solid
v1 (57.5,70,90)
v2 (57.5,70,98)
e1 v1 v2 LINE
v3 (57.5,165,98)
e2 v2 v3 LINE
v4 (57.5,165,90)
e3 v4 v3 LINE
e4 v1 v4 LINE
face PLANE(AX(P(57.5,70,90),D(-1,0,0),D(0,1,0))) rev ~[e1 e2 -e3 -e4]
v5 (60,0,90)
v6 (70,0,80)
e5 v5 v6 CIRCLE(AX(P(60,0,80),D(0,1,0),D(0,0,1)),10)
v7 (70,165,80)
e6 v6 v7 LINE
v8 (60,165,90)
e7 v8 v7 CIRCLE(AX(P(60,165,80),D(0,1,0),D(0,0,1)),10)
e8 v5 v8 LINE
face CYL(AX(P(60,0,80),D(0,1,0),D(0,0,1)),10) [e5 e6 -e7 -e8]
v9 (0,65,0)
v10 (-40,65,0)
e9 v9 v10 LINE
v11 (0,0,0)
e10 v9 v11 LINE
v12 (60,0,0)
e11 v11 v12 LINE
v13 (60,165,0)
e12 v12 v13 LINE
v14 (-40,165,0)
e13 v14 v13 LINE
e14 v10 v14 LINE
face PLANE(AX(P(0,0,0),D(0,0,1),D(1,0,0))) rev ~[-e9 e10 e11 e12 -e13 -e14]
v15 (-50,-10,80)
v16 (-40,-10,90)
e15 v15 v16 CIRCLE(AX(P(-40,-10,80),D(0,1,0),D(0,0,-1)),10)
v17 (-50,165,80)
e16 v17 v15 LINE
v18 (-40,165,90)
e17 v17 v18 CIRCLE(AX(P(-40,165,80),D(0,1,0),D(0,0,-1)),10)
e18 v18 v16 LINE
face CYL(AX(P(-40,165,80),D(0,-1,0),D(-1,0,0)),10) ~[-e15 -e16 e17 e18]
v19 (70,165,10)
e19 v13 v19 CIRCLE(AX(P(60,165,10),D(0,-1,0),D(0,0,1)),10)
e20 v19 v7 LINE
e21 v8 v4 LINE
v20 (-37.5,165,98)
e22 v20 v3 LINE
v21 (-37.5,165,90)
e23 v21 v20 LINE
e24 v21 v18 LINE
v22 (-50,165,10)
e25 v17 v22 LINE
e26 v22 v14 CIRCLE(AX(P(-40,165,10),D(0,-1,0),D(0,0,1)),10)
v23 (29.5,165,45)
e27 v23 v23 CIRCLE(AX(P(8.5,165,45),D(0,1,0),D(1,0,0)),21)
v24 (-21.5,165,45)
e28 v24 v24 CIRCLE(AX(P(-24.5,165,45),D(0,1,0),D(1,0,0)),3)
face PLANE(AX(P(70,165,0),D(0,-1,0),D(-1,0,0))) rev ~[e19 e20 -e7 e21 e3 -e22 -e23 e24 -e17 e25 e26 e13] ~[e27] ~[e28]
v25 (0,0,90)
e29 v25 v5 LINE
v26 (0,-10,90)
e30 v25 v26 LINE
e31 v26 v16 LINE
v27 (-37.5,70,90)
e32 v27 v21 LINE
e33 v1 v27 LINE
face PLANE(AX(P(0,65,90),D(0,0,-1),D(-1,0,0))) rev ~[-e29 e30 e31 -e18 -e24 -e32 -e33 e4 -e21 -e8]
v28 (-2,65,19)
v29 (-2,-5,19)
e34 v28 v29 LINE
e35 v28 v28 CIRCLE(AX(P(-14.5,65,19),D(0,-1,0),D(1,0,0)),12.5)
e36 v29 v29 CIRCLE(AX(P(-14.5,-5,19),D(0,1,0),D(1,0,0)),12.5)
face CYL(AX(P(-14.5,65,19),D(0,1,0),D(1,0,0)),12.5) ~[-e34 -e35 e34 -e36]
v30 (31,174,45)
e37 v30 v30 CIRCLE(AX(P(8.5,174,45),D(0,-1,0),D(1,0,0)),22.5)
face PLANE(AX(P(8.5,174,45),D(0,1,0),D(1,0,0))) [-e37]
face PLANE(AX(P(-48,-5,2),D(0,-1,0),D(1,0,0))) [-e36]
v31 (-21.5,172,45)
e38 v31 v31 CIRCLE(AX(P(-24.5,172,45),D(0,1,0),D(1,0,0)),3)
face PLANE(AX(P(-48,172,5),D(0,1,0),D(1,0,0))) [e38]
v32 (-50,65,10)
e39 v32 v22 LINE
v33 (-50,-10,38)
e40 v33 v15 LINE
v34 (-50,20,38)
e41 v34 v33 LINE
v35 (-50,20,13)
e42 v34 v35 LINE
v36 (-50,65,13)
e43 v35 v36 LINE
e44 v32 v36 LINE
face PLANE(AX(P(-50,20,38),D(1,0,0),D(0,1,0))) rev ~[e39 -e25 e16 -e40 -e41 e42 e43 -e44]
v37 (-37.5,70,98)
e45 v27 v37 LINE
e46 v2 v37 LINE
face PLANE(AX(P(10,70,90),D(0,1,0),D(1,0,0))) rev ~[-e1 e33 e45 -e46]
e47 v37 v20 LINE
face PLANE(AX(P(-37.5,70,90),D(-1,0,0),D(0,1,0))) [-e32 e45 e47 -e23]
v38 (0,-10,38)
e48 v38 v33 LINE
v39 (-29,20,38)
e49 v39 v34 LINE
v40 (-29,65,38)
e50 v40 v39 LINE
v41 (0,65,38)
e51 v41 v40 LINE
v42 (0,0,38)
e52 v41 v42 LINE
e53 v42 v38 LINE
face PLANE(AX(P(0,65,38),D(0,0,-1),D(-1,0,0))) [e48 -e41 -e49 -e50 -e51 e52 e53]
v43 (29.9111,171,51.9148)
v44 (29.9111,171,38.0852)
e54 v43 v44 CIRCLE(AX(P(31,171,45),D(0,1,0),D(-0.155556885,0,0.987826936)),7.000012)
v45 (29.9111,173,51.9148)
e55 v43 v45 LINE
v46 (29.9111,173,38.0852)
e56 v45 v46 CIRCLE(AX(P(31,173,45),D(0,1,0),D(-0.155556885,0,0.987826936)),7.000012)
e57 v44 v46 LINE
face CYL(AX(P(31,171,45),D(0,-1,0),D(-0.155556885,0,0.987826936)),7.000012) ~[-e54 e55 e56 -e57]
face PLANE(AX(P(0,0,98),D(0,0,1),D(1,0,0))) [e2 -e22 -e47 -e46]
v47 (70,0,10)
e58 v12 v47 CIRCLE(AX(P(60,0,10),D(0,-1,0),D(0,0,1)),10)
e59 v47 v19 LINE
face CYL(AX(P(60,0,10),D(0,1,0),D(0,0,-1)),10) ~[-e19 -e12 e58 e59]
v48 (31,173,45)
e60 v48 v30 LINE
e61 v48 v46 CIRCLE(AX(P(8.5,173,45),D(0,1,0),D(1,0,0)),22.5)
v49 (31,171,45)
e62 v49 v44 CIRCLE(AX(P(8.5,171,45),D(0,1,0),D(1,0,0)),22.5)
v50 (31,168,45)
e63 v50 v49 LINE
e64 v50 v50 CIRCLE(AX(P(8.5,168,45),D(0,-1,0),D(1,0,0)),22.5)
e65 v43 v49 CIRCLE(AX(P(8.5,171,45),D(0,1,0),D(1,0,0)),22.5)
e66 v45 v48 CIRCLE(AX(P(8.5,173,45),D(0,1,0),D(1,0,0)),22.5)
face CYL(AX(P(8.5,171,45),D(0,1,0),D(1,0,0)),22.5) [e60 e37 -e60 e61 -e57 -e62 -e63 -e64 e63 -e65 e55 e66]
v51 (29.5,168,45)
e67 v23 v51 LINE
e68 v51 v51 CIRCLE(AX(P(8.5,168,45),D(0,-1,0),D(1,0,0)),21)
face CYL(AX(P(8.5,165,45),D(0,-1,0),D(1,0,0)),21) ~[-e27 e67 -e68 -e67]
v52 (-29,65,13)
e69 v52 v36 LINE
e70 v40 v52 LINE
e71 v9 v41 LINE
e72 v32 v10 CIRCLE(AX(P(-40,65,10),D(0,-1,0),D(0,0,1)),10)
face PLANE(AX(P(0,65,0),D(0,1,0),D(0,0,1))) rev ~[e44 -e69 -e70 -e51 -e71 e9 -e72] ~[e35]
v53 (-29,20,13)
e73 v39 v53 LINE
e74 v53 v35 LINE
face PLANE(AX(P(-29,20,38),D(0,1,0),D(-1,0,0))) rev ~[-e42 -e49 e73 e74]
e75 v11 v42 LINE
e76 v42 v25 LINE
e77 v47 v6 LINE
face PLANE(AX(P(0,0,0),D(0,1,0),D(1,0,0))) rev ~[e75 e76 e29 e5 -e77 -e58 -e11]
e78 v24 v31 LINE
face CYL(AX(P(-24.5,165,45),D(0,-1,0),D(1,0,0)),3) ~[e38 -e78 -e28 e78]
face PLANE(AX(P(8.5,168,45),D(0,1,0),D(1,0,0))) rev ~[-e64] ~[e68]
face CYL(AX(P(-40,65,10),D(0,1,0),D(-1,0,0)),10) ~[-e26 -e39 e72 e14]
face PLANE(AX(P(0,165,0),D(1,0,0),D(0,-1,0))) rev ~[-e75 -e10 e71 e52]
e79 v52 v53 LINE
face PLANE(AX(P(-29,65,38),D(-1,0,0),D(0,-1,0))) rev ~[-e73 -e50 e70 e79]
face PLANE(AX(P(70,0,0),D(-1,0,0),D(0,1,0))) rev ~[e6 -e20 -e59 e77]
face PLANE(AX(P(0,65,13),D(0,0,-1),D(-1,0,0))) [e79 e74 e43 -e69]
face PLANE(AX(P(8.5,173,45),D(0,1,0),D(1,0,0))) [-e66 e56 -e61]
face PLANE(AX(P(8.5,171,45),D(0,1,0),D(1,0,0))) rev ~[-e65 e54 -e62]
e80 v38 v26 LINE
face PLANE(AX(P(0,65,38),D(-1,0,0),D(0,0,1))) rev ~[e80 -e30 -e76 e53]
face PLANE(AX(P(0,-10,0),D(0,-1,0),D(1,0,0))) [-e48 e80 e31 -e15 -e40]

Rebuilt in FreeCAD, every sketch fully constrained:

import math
import FreeCAD as App
import Part
import Sketcher
from FreeCAD import Vector
Q = App.Units.Quantity


def edges_at(feature, points):
    """Names of the edges that pass closest to the given points."""
    edges = feature.Shape.Edges
    near = lambda p: min(range(len(edges)), key=lambda i: edges[i].distToShape(Part.Vertex(*p))[0])
    return sorted({f"Edge{near(p) + 1}" for p in points})

doc = App.newDocument("Part")
params = doc.addObject("Spreadsheet::Sheet", "Params")
for row, (alias, value) in enumerate([
    ("sketch1_width", "70 mm"),
    ("sketch1_height", "165 mm"),
    ("pad1_length", "90 mm"),
    ("sketch2_width", "100 mm"),
    ("sketch2_height", "90 mm"),
    ("pad2_length", "50 mm"),
    ("sketch3_height", "52 mm"),
    ("sketch3_width", "50 mm"),
    ("pad3_length", "75 mm"),
    ("sketch4_width", "21 mm"),
    ("sketch4_height", "45 mm"),
    ("pad4_length", "25 mm"),
    ("sketch5_width", "95 mm"),
    ("pad5_length", "8 mm"),
    ("sketch6_diameter", "25 mm"),
    ("pad6_length", "70 mm"),
    ("sketch7_diameter", "42 mm"),
    ("pad7_length", "6 mm"),
    ("sketch8_diameter", "6 mm"),
    ("pad8_length", "7 mm"),
    ("sketch9_diameter", "45 mm"),
    ("pad9_length", "6 mm"),
    ("sketch10_radius", "7 mm"),
    ("sketch10_radius2", "22.5 mm"),
    ("pad10_length", "2 mm"),
    ("fillet_radius", "10 mm"),
], start=1):
    params.set(f"A{row}", alias)
    params.set(f"B{row}", "=" + value)
    params.setAlias(f"B{row}", alias)

body = doc.addObject("PartDesign::Body", "Body")

sketch1 = body.newObject("Sketcher::SketchObject", "Sketch")
sketch1.AttachmentSupport = (doc.getObject("XY_Plane"), [""])
sketch1.MapMode = "FlatFace"
sketch1.addGeometry(Part.LineSegment(Vector(0, 165, 0), Vector(0, 0, 0)), False)
sketch1.addGeometry(Part.LineSegment(Vector(0, 0, 0), Vector(70, 0, 0)), False)
sketch1.addGeometry(Part.LineSegment(Vector(70, 0, 0), Vector(70, 165, 0)), False)
sketch1.addGeometry(Part.LineSegment(Vector(70, 165, 0), Vector(0, 165, 0)), False)
sketch1.addConstraint(Sketcher.Constraint("Coincident", 0, 2, 1, 1))
sketch1.addConstraint(Sketcher.Constraint("Coincident", 1, 2, 2, 1))
sketch1.addConstraint(Sketcher.Constraint("Coincident", 2, 2, 3, 1))
sketch1.addConstraint(Sketcher.Constraint("Coincident", 3, 2, 0, 1))
sketch1.addConstraint(Sketcher.Constraint("Vertical", 0))
sketch1.addConstraint(Sketcher.Constraint("Horizontal", 1))
sketch1.addConstraint(Sketcher.Constraint("Vertical", 2))
sketch1.addConstraint(Sketcher.Constraint("Horizontal", 3))
sketch1.addConstraint(Sketcher.Constraint("Coincident", 0, 2, -1, 1))
sketch1.addConstraint(Sketcher.Constraint("DistanceX", 1, 1, 1, 2, Q("70 mm")))
sketch1.addConstraint(Sketcher.Constraint("DistanceY", 0, 2, 0, 1, Q("165 mm")))
sketch1.setExpression("Constraints[9]", "Params.sketch1_width")
sketch1.setExpression("Constraints[10]", "Params.sketch1_height")
pad1 = body.newObject("PartDesign::Pad", "Pad")
pad1.Profile = sketch1
pad1.setExpression("Length", "Params.pad1_length")

sketch2 = body.newObject("Sketcher::SketchObject", "Sketch001")
sketch2.AttachmentSupport = (doc.getObject("YZ_Plane"), [""])
sketch2.MapMode = "FlatFace"
sketch2.addGeometry(Part.LineSegment(Vector(65, 0, 0), Vector(65, 90, 0)), False)
sketch2.addGeometry(Part.LineSegment(Vector(65, 90, 0), Vector(165, 90, 0)), False)
sketch2.addGeometry(Part.LineSegment(Vector(165, 90, 0), Vector(165, 0, 0)), False)
sketch2.addGeometry(Part.LineSegment(Vector(165, 0, 0), Vector(65, 0, 0)), False)
sketch2.addConstraint(Sketcher.Constraint("Coincident", 0, 2, 1, 1))
sketch2.addConstraint(Sketcher.Constraint("Coincident", 1, 2, 2, 1))
sketch2.addConstraint(Sketcher.Constraint("Coincident", 2, 2, 3, 1))
sketch2.addConstraint(Sketcher.Constraint("Coincident", 3, 2, 0, 1))
sketch2.addConstraint(Sketcher.Constraint("Vertical", 0))
sketch2.addConstraint(Sketcher.Constraint("Horizontal", 1))
sketch2.addConstraint(Sketcher.Constraint("Vertical", 2))
sketch2.addConstraint(Sketcher.Constraint("Horizontal", 3))
sketch2.addConstraint(Sketcher.Constraint("PointOnObject", 2, 2, -1))
sketch2.addConstraint(Sketcher.Constraint("DistanceX", 1, 1, 1, 2, Q("100 mm")))
sketch2.addConstraint(Sketcher.Constraint("DistanceY", 0, 1, 0, 2, Q("90 mm")))
sketch2.addConstraint(Sketcher.Constraint("DistanceX", -1, 1, 0, 2, Q("65 mm")))
sketch2.setExpression("Constraints[9]", "Params.sketch2_width")
sketch2.setExpression("Constraints[10]", "Params.sketch2_height")
pad2 = body.newObject("PartDesign::Pad", "Pad001")
pad2.Profile = sketch2
pad2.setExpression("Length", "Params.pad2_length")
pad2.Reversed = True

sketch3 = body.newObject("Sketcher::SketchObject", "Sketch002")
sketch3.AttachmentSupport = (doc.getObject("XZ_Plane"), [""])
sketch3.MapMode = "FlatFace"
sketch3.AttachmentOffset = App.Placement(Vector(0, 0, -65), App.Rotation())
sketch3.addGeometry(Part.LineSegment(Vector(0, 38, 0), Vector(0, 90, 0)), False)
sketch3.addGeometry(Part.LineSegment(Vector(0, 90, 0), Vector(-50, 90, 0)), False)
sketch3.addGeometry(Part.LineSegment(Vector(-50, 90, 0), Vector(-50, 38, 0)), False)
sketch3.addGeometry(Part.LineSegment(Vector(-50, 38, 0), Vector(0, 38, 0)), False)
sketch3.addConstraint(Sketcher.Constraint("Coincident", 0, 2, 1, 1))
sketch3.addConstraint(Sketcher.Constraint("Coincident", 1, 2, 2, 1))
sketch3.addConstraint(Sketcher.Constraint("Coincident", 2, 2, 3, 1))
sketch3.addConstraint(Sketcher.Constraint("Coincident", 3, 2, 0, 1))
sketch3.addConstraint(Sketcher.Constraint("Vertical", 0))
sketch3.addConstraint(Sketcher.Constraint("Horizontal", 1))
sketch3.addConstraint(Sketcher.Constraint("Vertical", 2))
sketch3.addConstraint(Sketcher.Constraint("Horizontal", 3))
sketch3.addConstraint(Sketcher.Constraint("PointOnObject", 0, 2, -2))
sketch3.addConstraint(Sketcher.Constraint("DistanceY", 0, 1, 0, 2, Q("52 mm")))
sketch3.addConstraint(Sketcher.Constraint("DistanceX", 1, 2, 1, 1, Q("50 mm")))
sketch3.addConstraint(Sketcher.Constraint("DistanceY", -1, 1, 0, 2, Q("90 mm")))
sketch3.setExpression("Constraints[9]", "Params.sketch3_height")
sketch3.setExpression("Constraints[10]", "Params.sketch3_width")
pad3 = body.newObject("PartDesign::Pad", "Pad002")
pad3.Profile = sketch3
pad3.setExpression("Length", "Params.pad3_length")

sketch4 = body.newObject("Sketcher::SketchObject", "Sketch003")
sketch4.AttachmentSupport = (doc.getObject("XY_Plane"), [""])
sketch4.MapMode = "FlatFace"
sketch4.AttachmentOffset = App.Placement(Vector(0, 0, 38), App.Rotation())
sketch4.addGeometry(Part.LineSegment(Vector(-50, 65, 0), Vector(-29, 65, 0)), False)
sketch4.addGeometry(Part.LineSegment(Vector(-29, 65, 0), Vector(-29, 20, 0)), False)
sketch4.addGeometry(Part.LineSegment(Vector(-29, 20, 0), Vector(-50, 20, 0)), False)
sketch4.addGeometry(Part.LineSegment(Vector(-50, 20, 0), Vector(-50, 65, 0)), False)
sketch4.addConstraint(Sketcher.Constraint("Coincident", 0, 2, 1, 1))
sketch4.addConstraint(Sketcher.Constraint("Coincident", 1, 2, 2, 1))
sketch4.addConstraint(Sketcher.Constraint("Coincident", 2, 2, 3, 1))
sketch4.addConstraint(Sketcher.Constraint("Coincident", 3, 2, 0, 1))
sketch4.addConstraint(Sketcher.Constraint("Horizontal", 0))
sketch4.addConstraint(Sketcher.Constraint("Vertical", 1))
sketch4.addConstraint(Sketcher.Constraint("Horizontal", 2))
sketch4.addConstraint(Sketcher.Constraint("Vertical", 3))
sketch4.addConstraint(Sketcher.Constraint("DistanceX", 0, 1, 0, 2, Q("21 mm")))
sketch4.addConstraint(Sketcher.Constraint("DistanceY", 1, 2, 1, 1, Q("45 mm")))
sketch4.addConstraint(Sketcher.Constraint("DistanceX", 0, 2, -1, 1, Q("29 mm")))
sketch4.addConstraint(Sketcher.Constraint("DistanceY", -1, 1, 0, 2, Q("65 mm")))
sketch4.setExpression("Constraints[8]", "Params.sketch4_width")
sketch4.setExpression("Constraints[9]", "Params.sketch4_height")
pad4 = body.newObject("PartDesign::Pad", "Pad003")
pad4.Profile = sketch4
pad4.setExpression("Length", "Params.pad4_length")
pad4.Reversed = True

sketch5 = body.newObject("Sketcher::SketchObject", "Sketch004")
sketch5.AttachmentSupport = (doc.getObject("XY_Plane"), [""])
sketch5.MapMode = "FlatFace"
sketch5.AttachmentOffset = App.Placement(Vector(0, 0, 90), App.Rotation())
sketch5.addGeometry(Part.LineSegment(Vector(58, 70, 0), Vector(58, 165, 0)), False)
sketch5.addGeometry(Part.LineSegment(Vector(58, 165, 0), Vector(-38, 165, 0)), False)
sketch5.addGeometry(Part.LineSegment(Vector(-38, 165, 0), Vector(-38, 70, 0)), False)
sketch5.addGeometry(Part.LineSegment(Vector(-38, 70, 0), Vector(58, 70, 0)), False)
sketch5.addConstraint(Sketcher.Constraint("Coincident", 0, 2, 1, 1))
sketch5.addConstraint(Sketcher.Constraint("Coincident", 1, 2, 2, 1))
sketch5.addConstraint(Sketcher.Constraint("Coincident", 2, 2, 3, 1))
sketch5.addConstraint(Sketcher.Constraint("Coincident", 3, 2, 0, 1))
sketch5.addConstraint(Sketcher.Constraint("Vertical", 0))
sketch5.addConstraint(Sketcher.Constraint("Horizontal", 1))
sketch5.addConstraint(Sketcher.Constraint("Vertical", 2))
sketch5.addConstraint(Sketcher.Constraint("Horizontal", 3))
sketch5.addConstraint(Sketcher.Constraint("Equal", 3, 0))
sketch5.addConstraint(Sketcher.Constraint("DistanceX", 1, 2, 1, 1, Q("95 mm")))
sketch5.addConstraint(Sketcher.Constraint("DistanceY", -1, 1, 0, 2, Q("165 mm")))
sketch5.addConstraint(Sketcher.Constraint("DistanceX", -1, 1, 0, 2, Q("57.5 mm")))
sketch5.setExpression("Constraints[9]", "Params.sketch5_width")
pad5 = body.newObject("PartDesign::Pad", "Pad004")
pad5.Profile = sketch5
pad5.setExpression("Length", "Params.pad5_length")

sketch6 = body.newObject("Sketcher::SketchObject", "Sketch005")
sketch6.AttachmentSupport = (doc.getObject("XZ_Plane"), [""])
sketch6.MapMode = "FlatFace"
sketch6.AttachmentOffset = App.Placement(Vector(0, 0, -65), App.Rotation())
sketch6.addGeometry(Part.Circle(Vector(-14, 19, 0), Vector(0, 0, 1), 12), False)
sketch6.addConstraint(Sketcher.Constraint("Diameter", 0, Q("25 mm")))
sketch6.addConstraint(Sketcher.Constraint("DistanceY", -1, 1, 0, 3, Q("19 mm")))
sketch6.addConstraint(Sketcher.Constraint("DistanceX", 0, 3, -1, 1, Q("14.5 mm")))
sketch6.setExpression("Constraints[0]", "Params.sketch6_diameter")
pad6 = body.newObject("PartDesign::Pad", "Pad005")
pad6.Profile = sketch6
pad6.setExpression("Length", "Params.pad6_length")

sketch7 = body.newObject("Sketcher::SketchObject", "Sketch006")
sketch7.AttachmentSupport = (doc.getObject("XZ_Plane"), [""])
sketch7.MapMode = "FlatFace"
sketch7.AttachmentOffset = App.Placement(Vector(0, 0, -165), App.Rotation())
sketch7.addGeometry(Part.Circle(Vector(8, 45, 0), Vector(0, 0, 1), 21), False)
sketch7.addConstraint(Sketcher.Constraint("Diameter", 0, Q("42 mm")))
sketch7.addConstraint(Sketcher.Constraint("DistanceY", -1, 1, 0, 3, Q("45 mm")))
sketch7.addConstraint(Sketcher.Constraint("DistanceX", -1, 1, 0, 3, Q("8.5 mm")))
sketch7.setExpression("Constraints[0]", "Params.sketch7_diameter")
pad7 = body.newObject("PartDesign::Pad", "Pad006")
pad7.Profile = sketch7
pad7.setExpression("Length", "Params.pad7_length")
pad7.Reversed = True

sketch8 = body.newObject("Sketcher::SketchObject", "Sketch007")
sketch8.AttachmentSupport = (doc.getObject("XZ_Plane"), [""])
sketch8.MapMode = "FlatFace"
sketch8.AttachmentOffset = App.Placement(Vector(0, 0, -165), App.Rotation())
sketch8.addGeometry(Part.Circle(Vector(-24.5, 45, 0), Vector(0, 0, 1), 3), False)
sketch8.addConstraint(Sketcher.Constraint("Diameter", 0, Q("6 mm")))
sketch8.addConstraint(Sketcher.Constraint("DistanceY", -1, 1, 0, 3, Q("45 mm")))
sketch8.addConstraint(Sketcher.Constraint("DistanceX", 0, 3, -1, 1, Q("24.5 mm")))
sketch8.setExpression("Constraints[0]", "Params.sketch8_diameter")
pad8 = body.newObject("PartDesign::Pad", "Pad007")
pad8.Profile = sketch8
pad8.setExpression("Length", "Params.pad8_length")
pad8.Reversed = True

sketch9 = body.newObject("Sketcher::SketchObject", "Sketch008")
sketch9.AttachmentSupport = (doc.getObject("XZ_Plane"), [""])
sketch9.MapMode = "FlatFace"
sketch9.AttachmentOffset = App.Placement(Vector(0, 0, -171), App.Rotation())
sketch9.addGeometry(Part.Circle(Vector(8, 45, 0), Vector(0, 0, 1), 22), False)
sketch9.addConstraint(Sketcher.Constraint("Diameter", 0, Q("45 mm")))
sketch9.addConstraint(Sketcher.Constraint("DistanceY", -1, 1, 0, 3, Q("45 mm")))
sketch9.addConstraint(Sketcher.Constraint("DistanceX", -1, 1, 0, 3, Q("8.5 mm")))
sketch9.setExpression("Constraints[0]", "Params.sketch9_diameter")
pad9 = body.newObject("PartDesign::Pad", "Pad008")
pad9.Profile = sketch9
pad9.setExpression("Length", "Params.pad9_length")
pad9.Midplane = True

sketch10 = body.newObject("Sketcher::SketchObject", "Sketch009")
sketch10.AttachmentSupport = (doc.getObject("XZ_Plane"), [""])
sketch10.MapMode = "FlatFace"
sketch10.AttachmentOffset = App.Placement(Vector(0, 0, -171), App.Rotation())
sketch10.addGeometry(Part.ArcOfCircle(Part.Circle(Vector(8, 45, 0), Vector(0, 0, 1), 22), math.radians(-18), math.radians(18)), False)
sketch10.addGeometry(Part.ArcOfCircle(Part.Circle(Vector(31, 45, 0), Vector(0, 0, 1), 7), math.radians(-99), math.radians(99)), False)
sketch10.addConstraint(Sketcher.Constraint("Coincident", 0, 1, 1, 1))
sketch10.addConstraint(Sketcher.Constraint("Coincident", 1, 2, 0, 2))
sketch10.addConstraint(Sketcher.Constraint("Horizontal", 0, 3, 1, 3))
sketch10.addConstraint(Sketcher.Constraint("Radius", 1, Q("7 mm")))
sketch10.addConstraint(Sketcher.Constraint("Radius", 0, Q("22.5 mm")))
sketch10.addConstraint(Sketcher.Constraint("DistanceY", -1, 1, 0, 3, Q("45 mm")))
sketch10.addConstraint(Sketcher.Constraint("DistanceX", -1, 1, 1, 3, Q("31 mm")))
sketch10.addConstraint(Sketcher.Constraint("DistanceX", -1, 1, 0, 3, Q("8.5 mm")))
sketch10.setExpression("Constraints[3]", "Params.sketch10_radius")
sketch10.setExpression("Constraints[4]", "Params.sketch10_radius2")
pad10 = body.newObject("PartDesign::Pad", "Pad009")
pad10.Profile = sketch10
pad10.setExpression("Length", "Params.pad10_length")
pad10.Reversed = True
doc.recompute()

fillet = body.newObject("PartDesign::Fillet", "Fillet")
fillet.Base = (pad10, edges_at(pad10, [
    (-50, 115, 0),
    (70, 82.5, 0),
    (70, 82.5, 90),
    (-50, 77.5, 90),
]))
fillet.setExpression("Radius", "Params.fillet_radius")

doc.recompute()
